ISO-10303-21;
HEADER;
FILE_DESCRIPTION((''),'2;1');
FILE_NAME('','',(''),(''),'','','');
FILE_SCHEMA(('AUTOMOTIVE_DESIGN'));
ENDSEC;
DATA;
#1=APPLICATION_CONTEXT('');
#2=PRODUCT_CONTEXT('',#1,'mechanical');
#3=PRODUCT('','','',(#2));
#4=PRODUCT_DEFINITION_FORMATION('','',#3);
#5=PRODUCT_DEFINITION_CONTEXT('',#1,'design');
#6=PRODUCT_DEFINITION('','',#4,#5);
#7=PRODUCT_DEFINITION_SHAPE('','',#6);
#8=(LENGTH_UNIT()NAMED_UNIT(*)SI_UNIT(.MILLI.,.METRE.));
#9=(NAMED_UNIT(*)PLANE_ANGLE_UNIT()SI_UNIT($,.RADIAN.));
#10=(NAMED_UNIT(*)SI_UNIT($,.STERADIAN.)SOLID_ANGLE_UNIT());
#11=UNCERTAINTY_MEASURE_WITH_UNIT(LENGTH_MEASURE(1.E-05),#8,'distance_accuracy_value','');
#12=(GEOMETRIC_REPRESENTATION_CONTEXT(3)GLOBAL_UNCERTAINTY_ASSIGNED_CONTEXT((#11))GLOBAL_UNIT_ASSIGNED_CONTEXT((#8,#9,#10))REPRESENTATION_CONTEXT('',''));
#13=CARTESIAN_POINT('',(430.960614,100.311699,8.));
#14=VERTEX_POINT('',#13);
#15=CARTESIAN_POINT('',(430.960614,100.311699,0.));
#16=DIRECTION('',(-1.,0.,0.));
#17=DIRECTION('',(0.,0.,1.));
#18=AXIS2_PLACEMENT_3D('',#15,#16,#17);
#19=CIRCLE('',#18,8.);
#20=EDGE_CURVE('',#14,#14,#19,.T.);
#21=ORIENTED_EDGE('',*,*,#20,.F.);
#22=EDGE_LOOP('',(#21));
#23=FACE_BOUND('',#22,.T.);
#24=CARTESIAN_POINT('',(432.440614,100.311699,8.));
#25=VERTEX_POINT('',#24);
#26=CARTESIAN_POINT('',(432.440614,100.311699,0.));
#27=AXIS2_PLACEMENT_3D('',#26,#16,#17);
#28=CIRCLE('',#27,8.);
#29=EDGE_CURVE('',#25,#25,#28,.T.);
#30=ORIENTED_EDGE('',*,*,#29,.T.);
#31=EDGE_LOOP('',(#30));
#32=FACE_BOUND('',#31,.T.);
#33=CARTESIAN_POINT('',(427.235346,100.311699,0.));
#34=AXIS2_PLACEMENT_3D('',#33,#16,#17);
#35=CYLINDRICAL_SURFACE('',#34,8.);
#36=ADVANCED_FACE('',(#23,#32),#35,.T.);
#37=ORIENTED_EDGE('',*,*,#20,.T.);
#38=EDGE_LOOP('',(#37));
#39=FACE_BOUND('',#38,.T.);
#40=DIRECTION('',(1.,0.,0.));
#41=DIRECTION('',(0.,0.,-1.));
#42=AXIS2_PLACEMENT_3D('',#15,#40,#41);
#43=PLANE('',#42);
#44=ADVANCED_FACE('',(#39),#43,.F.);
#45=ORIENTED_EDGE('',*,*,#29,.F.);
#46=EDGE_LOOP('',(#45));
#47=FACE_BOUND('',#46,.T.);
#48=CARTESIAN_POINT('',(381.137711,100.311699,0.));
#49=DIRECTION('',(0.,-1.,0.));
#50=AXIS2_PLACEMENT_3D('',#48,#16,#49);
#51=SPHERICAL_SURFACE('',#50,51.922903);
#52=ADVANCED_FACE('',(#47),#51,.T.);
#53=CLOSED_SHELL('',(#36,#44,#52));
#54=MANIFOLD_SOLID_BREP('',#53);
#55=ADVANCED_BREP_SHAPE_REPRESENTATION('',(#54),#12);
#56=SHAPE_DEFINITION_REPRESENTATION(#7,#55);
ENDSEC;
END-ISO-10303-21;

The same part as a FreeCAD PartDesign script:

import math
import FreeCAD as App
import Part
import Sketcher

V = App.Vector
Q = App.Units.Quantity

doc = App.newDocument("Part")
params = doc.addObject("Spreadsheet::Sheet", "Params")
for row, (alias, value) in enumerate([
    ("sketch1_height", "8 mm"),
    ("sketch1_width", "2.1 mm"),
    ("sketch1_width2", "1.48 mm"),
    ("revolution_angle", "360 deg"),
], start=1):
    params.set(f"A{row}", alias)
    params.set(f"B{row}", "=" + value)
    params.setAlias(f"B{row}", alias)

body = doc.addObject("PartDesign::Body", "Body")

sketch1 = body.newObject("Sketcher::SketchObject", "Sketch")
sketch1.AttachmentSupport = (doc.getObject("XY_Plane"), [""])
sketch1.MapMode = "FlatFace"
sketch1.addGeometry(Part.LineSegment(V(431, 108.3, 0), V(431, 100.3, 0)), False)
sketch1.addGeometry(Part.LineSegment(V(431, 100.3, 0), V(433.1, 100.3, 0)), False)
sketch1.addGeometry(Part.ArcOfCircle(Part.Circle(V(381.1, 100.3, 0), V(0, 0, 1), 51.9), math.radians(0), math.radians(8.86)), False)
sketch1.addGeometry(Part.LineSegment(V(432.4, 108.3, 0), V(431, 108.3, 0)), False)
sketch1.addGeometry(Part.LineSegment(V(381.1, 100.3, 0), V(433.1, 100.3, 0)), True)
sketch1.addConstraint(Sketcher.Constraint("Coincident", 0, 2, 1, 1))
sketch1.addConstraint(Sketcher.Constraint("Coincident", 1, 2, 2, 1))
sketch1.addConstraint(Sketcher.Constraint("Coincident", 2, 2, 3, 1))
sketch1.addConstraint(Sketcher.Constraint("Coincident", 3, 2, 0, 1))
sketch1.addConstraint(Sketcher.Constraint("Vertical", 0))
sketch1.addConstraint(Sketcher.Constraint("Horizontal", 1))
sketch1.addConstraint(Sketcher.Constraint("Horizontal", 3))
sketch1.addConstraint(Sketcher.Constraint("Horizontal", 4))
sketch1.addConstraint(Sketcher.Constraint("Coincident", 4, 1, 2, 3))
sketch1.addConstraint(Sketcher.Constraint("Coincident", 4, 2, 1, 2))
sketch1.addConstraint(Sketcher.Constraint("DistanceY", 0, 2, 0, 1, Q("8 mm")))
sketch1.addConstraint(Sketcher.Constraint("DistanceX", 1, 1, 1, 2, Q("2.1 mm")))
sketch1.addConstraint(Sketcher.Constraint("DistanceX", 3, 2, 3, 1, Q("1.48 mm")))
sketch1.addConstraint(Sketcher.Constraint("DistanceY", -1, 1, 2, 3, Q("100.311699 mm")))
sketch1.addConstraint(Sketcher.Constraint("DistanceX", -1, 1, 2, 3, Q("381.137711 mm")))
sketch1.setExpression("Constraints[10]", "Params.sketch1_height")
sketch1.setExpression("Constraints[11]", "Params.sketch1_width")
sketch1.setExpression("Constraints[12]", "Params.sketch1_width2")
revolution = body.newObject("PartDesign::Revolution", "Revolution")
revolution.Profile = sketch1
revolution.ReferenceAxis = (sketch1, ["Axis0"])
revolution.setExpression("Angle", "Params.revolution_angle")

doc.recompute()
